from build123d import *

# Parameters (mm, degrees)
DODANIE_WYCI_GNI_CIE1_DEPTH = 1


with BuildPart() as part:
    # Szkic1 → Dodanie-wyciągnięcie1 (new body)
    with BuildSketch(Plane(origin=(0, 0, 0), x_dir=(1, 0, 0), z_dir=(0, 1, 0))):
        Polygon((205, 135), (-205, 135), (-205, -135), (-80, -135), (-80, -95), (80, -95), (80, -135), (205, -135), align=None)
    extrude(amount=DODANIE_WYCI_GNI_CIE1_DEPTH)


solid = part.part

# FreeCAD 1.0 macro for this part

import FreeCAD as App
import Part
import Sketcher


def add_polygon(sketch, points):
    """Adds a closed chain of lines whose ends are joined by coincident constraints."""
    first, n = sketch.GeometryCount, len(points)
    for a, b in zip(points, points[1:] + points[:1]):
        sketch.addGeometry(Part.LineSegment(App.Vector(*a, 0), App.Vector(*b, 0)), False)
    for i in range(n):
        sketch.addConstraint(Sketcher.Constraint("Coincident", first + i, 2, first + (i + 1) % n, 1))

doc = App.newDocument("Part")
body = doc.addObject("PartDesign::Body", "Body")

sketch1 = doc.addObject("Sketcher::SketchObject", "Sketch")
body.addObject(sketch1)
sketch1.AttachmentSupport = (doc.XZ_Plane, [""])
sketch1.MapMode = "FlatFace"
add_polygon(sketch1, [(205, -135), (-205, -135), (-205, 135), (-80, 135), (-80, 95), (80, 95), (80, 135), (205, 135)])
sketch1.addConstraint(Sketcher.Constraint("Horizontal", 0))
sketch1.addConstraint(Sketcher.Constraint("Vertical", 1))
sketch1.addConstraint(Sketcher.Constraint("Horizontal", 2))
sketch1.addConstraint(Sketcher.Constraint("Vertical", 3))
sketch1.addConstraint(Sketcher.Constraint("Horizontal", 4))
sketch1.addConstraint(Sketcher.Constraint("Vertical", 5))
sketch1.addConstraint(Sketcher.Constraint("Horizontal", 6))
sketch1.addConstraint(Sketcher.Constraint("Vertical", 7))
sketch1.addConstraint(Sketcher.Constraint("Symmetric", 0, 2, 6, 2, -1, 1))
sketch1.addConstraint(Sketcher.Constraint("Symmetric", 2, 2, 5, 2, -2))
sketch1.addConstraint(Sketcher.Constraint("DistanceX", 0, 2, 0, 1, 410.0))
sketch1.addConstraint(Sketcher.Constraint("DistanceX", 2, 1, 2, 2, 125.0))
sketch1.addConstraint(Sketcher.Constraint("DistanceY", 1, 1, 1, 2, 270.0))
sketch1.addConstraint(Sketcher.Constraint("DistanceY", 3, 2, 3, 1, 40.0))
pad1 = doc.addObject("PartDesign::Pad", "Pad")
body.addObject(pad1)
pad1.Profile = sketch1
pad1.Length = 1
pad1.Reversed = True

doc.recompute()
